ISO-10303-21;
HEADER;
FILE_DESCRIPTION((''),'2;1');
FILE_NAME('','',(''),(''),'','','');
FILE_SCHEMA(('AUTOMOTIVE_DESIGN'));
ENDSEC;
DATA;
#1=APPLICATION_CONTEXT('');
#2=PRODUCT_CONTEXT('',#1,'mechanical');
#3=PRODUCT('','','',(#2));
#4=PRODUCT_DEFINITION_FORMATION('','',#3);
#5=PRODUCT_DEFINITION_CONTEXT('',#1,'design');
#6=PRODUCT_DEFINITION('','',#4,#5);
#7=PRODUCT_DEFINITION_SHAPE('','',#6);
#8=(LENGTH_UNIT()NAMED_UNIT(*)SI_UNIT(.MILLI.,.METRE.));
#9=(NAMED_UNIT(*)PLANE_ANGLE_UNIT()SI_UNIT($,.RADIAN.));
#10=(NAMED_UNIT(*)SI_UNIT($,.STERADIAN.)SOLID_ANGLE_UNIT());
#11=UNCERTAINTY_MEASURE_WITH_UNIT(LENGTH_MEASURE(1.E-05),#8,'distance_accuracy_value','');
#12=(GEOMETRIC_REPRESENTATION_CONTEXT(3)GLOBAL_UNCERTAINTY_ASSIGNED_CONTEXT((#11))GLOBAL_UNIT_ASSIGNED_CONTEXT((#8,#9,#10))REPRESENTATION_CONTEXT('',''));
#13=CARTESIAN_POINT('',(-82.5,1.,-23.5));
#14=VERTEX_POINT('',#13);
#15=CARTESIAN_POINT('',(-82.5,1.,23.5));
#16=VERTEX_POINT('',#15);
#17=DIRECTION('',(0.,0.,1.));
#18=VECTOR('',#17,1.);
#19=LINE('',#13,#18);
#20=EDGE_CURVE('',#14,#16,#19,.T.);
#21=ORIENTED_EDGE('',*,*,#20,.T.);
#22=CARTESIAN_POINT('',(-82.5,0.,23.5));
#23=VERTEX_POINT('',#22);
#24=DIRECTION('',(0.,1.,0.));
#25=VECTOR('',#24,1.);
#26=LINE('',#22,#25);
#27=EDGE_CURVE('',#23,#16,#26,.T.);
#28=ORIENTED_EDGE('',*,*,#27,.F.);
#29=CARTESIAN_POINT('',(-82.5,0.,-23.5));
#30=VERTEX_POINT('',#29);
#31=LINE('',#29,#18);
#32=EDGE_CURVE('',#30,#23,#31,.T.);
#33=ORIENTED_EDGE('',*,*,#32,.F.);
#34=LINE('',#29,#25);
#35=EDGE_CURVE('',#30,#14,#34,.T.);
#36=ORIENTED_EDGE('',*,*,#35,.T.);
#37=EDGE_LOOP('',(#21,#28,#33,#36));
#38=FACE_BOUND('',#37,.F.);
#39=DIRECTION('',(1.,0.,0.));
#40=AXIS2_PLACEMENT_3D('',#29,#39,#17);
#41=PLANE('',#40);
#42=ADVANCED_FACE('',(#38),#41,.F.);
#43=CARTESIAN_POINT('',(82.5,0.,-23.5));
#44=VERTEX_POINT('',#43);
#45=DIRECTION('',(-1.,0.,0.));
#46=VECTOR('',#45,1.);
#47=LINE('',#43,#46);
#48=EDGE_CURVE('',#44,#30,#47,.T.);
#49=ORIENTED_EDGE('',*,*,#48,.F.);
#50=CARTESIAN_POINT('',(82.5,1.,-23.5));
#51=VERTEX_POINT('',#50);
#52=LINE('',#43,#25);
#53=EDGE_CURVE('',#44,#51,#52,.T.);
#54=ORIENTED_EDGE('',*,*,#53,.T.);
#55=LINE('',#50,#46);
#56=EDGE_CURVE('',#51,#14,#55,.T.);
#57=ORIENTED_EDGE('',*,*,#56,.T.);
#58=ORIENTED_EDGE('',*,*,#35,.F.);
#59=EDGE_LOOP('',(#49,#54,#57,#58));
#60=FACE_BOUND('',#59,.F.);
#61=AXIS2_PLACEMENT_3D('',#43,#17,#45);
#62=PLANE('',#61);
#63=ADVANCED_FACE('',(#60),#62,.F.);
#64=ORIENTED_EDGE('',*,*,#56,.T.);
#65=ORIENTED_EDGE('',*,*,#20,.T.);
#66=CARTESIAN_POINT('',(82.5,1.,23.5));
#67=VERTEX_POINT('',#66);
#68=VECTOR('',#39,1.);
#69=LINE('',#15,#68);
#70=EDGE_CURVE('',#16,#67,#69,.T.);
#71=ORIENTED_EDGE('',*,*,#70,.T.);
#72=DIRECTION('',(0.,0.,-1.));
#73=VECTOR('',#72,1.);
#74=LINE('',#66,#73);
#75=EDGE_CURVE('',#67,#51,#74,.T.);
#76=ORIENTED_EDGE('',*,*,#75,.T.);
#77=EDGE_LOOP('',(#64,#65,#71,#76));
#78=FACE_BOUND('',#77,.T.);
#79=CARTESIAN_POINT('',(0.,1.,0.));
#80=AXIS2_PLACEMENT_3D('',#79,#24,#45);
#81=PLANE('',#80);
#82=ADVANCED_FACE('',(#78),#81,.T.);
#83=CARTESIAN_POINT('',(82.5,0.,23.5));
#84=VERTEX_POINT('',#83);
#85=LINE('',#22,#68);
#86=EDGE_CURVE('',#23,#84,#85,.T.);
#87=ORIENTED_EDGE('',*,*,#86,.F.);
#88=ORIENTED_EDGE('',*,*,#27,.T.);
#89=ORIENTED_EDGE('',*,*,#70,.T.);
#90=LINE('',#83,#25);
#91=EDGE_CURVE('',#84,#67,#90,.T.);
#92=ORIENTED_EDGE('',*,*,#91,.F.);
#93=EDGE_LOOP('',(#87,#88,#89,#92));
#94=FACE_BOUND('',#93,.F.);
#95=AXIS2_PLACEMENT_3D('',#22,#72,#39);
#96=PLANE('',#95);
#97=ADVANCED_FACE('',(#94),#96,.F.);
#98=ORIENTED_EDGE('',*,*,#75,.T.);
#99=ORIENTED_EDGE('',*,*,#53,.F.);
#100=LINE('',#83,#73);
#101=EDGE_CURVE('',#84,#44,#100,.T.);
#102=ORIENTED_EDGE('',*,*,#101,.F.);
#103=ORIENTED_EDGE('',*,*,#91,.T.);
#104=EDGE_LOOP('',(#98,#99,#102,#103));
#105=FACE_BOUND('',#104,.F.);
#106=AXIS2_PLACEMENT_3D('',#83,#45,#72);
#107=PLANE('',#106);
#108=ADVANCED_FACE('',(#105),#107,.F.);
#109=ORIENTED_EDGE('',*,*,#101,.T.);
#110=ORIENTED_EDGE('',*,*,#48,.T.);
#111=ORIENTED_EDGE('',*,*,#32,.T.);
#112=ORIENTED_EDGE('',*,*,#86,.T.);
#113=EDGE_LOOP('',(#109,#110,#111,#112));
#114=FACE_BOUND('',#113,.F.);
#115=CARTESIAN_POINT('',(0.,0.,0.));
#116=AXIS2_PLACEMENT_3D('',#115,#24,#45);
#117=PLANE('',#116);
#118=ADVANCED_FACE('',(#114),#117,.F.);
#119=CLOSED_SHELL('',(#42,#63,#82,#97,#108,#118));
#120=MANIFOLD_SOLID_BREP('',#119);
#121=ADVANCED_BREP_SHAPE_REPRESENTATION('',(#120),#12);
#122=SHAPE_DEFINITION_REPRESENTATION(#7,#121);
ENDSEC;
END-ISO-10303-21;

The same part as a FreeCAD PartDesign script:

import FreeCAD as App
import Part
import Sketcher
Q = App.Units.Quantity

doc = App.newDocument("Part")
body = doc.addObject("PartDesign::Body", "Body")

sketch1 = body.newObject("Sketcher::SketchObject", "Sketch")
sketch1.AttachmentSupport = (doc.getObject("XZ_Plane"), [""])
sketch1.MapMode = "FlatFace"
sketch1.addGeometry([
    Part.LineSegment(App.Vector(82, -24, 0), App.Vector(-82, -24, 0)),
    Part.LineSegment(App.Vector(-82, -24, 0), App.Vector(-82, 24, 0)),
    Part.LineSegment(App.Vector(-82, 24, 0), App.Vector(82, 24, 0)),
    Part.LineSegment(App.Vector(82, 24, 0), App.Vector(82, -24, 0)),
], False)
sketch1.addConstraint([
    Sketcher.Constraint("Coincident", 0, 2, 1, 1),
    Sketcher.Constraint("Coincident", 1, 2, 2, 1),
    Sketcher.Constraint("Coincident", 2, 2, 3, 1),
    Sketcher.Constraint("Coincident", 3, 2, 0, 1),
    Sketcher.Constraint("Horizontal", 0),
    Sketcher.Constraint("Vertical", 1),
    Sketcher.Constraint("Horizontal", 2),
    Sketcher.Constraint("Vertical", 3),
    Sketcher.Constraint("Symmetric", 0, 2, 2, 2, -1, 1),
    Sketcher.Constraint("DistanceX", 0, 2, 0, 1, Q("165 mm")),
    Sketcher.Constraint("DistanceY", 1, 1, 1, 2, Q("47 mm")),
])
pad1 = body.newObject("PartDesign::Pad", "Pad")
pad1.Profile = sketch1
pad1.Length = 1
pad1.Reversed = True

doc.recompute()
